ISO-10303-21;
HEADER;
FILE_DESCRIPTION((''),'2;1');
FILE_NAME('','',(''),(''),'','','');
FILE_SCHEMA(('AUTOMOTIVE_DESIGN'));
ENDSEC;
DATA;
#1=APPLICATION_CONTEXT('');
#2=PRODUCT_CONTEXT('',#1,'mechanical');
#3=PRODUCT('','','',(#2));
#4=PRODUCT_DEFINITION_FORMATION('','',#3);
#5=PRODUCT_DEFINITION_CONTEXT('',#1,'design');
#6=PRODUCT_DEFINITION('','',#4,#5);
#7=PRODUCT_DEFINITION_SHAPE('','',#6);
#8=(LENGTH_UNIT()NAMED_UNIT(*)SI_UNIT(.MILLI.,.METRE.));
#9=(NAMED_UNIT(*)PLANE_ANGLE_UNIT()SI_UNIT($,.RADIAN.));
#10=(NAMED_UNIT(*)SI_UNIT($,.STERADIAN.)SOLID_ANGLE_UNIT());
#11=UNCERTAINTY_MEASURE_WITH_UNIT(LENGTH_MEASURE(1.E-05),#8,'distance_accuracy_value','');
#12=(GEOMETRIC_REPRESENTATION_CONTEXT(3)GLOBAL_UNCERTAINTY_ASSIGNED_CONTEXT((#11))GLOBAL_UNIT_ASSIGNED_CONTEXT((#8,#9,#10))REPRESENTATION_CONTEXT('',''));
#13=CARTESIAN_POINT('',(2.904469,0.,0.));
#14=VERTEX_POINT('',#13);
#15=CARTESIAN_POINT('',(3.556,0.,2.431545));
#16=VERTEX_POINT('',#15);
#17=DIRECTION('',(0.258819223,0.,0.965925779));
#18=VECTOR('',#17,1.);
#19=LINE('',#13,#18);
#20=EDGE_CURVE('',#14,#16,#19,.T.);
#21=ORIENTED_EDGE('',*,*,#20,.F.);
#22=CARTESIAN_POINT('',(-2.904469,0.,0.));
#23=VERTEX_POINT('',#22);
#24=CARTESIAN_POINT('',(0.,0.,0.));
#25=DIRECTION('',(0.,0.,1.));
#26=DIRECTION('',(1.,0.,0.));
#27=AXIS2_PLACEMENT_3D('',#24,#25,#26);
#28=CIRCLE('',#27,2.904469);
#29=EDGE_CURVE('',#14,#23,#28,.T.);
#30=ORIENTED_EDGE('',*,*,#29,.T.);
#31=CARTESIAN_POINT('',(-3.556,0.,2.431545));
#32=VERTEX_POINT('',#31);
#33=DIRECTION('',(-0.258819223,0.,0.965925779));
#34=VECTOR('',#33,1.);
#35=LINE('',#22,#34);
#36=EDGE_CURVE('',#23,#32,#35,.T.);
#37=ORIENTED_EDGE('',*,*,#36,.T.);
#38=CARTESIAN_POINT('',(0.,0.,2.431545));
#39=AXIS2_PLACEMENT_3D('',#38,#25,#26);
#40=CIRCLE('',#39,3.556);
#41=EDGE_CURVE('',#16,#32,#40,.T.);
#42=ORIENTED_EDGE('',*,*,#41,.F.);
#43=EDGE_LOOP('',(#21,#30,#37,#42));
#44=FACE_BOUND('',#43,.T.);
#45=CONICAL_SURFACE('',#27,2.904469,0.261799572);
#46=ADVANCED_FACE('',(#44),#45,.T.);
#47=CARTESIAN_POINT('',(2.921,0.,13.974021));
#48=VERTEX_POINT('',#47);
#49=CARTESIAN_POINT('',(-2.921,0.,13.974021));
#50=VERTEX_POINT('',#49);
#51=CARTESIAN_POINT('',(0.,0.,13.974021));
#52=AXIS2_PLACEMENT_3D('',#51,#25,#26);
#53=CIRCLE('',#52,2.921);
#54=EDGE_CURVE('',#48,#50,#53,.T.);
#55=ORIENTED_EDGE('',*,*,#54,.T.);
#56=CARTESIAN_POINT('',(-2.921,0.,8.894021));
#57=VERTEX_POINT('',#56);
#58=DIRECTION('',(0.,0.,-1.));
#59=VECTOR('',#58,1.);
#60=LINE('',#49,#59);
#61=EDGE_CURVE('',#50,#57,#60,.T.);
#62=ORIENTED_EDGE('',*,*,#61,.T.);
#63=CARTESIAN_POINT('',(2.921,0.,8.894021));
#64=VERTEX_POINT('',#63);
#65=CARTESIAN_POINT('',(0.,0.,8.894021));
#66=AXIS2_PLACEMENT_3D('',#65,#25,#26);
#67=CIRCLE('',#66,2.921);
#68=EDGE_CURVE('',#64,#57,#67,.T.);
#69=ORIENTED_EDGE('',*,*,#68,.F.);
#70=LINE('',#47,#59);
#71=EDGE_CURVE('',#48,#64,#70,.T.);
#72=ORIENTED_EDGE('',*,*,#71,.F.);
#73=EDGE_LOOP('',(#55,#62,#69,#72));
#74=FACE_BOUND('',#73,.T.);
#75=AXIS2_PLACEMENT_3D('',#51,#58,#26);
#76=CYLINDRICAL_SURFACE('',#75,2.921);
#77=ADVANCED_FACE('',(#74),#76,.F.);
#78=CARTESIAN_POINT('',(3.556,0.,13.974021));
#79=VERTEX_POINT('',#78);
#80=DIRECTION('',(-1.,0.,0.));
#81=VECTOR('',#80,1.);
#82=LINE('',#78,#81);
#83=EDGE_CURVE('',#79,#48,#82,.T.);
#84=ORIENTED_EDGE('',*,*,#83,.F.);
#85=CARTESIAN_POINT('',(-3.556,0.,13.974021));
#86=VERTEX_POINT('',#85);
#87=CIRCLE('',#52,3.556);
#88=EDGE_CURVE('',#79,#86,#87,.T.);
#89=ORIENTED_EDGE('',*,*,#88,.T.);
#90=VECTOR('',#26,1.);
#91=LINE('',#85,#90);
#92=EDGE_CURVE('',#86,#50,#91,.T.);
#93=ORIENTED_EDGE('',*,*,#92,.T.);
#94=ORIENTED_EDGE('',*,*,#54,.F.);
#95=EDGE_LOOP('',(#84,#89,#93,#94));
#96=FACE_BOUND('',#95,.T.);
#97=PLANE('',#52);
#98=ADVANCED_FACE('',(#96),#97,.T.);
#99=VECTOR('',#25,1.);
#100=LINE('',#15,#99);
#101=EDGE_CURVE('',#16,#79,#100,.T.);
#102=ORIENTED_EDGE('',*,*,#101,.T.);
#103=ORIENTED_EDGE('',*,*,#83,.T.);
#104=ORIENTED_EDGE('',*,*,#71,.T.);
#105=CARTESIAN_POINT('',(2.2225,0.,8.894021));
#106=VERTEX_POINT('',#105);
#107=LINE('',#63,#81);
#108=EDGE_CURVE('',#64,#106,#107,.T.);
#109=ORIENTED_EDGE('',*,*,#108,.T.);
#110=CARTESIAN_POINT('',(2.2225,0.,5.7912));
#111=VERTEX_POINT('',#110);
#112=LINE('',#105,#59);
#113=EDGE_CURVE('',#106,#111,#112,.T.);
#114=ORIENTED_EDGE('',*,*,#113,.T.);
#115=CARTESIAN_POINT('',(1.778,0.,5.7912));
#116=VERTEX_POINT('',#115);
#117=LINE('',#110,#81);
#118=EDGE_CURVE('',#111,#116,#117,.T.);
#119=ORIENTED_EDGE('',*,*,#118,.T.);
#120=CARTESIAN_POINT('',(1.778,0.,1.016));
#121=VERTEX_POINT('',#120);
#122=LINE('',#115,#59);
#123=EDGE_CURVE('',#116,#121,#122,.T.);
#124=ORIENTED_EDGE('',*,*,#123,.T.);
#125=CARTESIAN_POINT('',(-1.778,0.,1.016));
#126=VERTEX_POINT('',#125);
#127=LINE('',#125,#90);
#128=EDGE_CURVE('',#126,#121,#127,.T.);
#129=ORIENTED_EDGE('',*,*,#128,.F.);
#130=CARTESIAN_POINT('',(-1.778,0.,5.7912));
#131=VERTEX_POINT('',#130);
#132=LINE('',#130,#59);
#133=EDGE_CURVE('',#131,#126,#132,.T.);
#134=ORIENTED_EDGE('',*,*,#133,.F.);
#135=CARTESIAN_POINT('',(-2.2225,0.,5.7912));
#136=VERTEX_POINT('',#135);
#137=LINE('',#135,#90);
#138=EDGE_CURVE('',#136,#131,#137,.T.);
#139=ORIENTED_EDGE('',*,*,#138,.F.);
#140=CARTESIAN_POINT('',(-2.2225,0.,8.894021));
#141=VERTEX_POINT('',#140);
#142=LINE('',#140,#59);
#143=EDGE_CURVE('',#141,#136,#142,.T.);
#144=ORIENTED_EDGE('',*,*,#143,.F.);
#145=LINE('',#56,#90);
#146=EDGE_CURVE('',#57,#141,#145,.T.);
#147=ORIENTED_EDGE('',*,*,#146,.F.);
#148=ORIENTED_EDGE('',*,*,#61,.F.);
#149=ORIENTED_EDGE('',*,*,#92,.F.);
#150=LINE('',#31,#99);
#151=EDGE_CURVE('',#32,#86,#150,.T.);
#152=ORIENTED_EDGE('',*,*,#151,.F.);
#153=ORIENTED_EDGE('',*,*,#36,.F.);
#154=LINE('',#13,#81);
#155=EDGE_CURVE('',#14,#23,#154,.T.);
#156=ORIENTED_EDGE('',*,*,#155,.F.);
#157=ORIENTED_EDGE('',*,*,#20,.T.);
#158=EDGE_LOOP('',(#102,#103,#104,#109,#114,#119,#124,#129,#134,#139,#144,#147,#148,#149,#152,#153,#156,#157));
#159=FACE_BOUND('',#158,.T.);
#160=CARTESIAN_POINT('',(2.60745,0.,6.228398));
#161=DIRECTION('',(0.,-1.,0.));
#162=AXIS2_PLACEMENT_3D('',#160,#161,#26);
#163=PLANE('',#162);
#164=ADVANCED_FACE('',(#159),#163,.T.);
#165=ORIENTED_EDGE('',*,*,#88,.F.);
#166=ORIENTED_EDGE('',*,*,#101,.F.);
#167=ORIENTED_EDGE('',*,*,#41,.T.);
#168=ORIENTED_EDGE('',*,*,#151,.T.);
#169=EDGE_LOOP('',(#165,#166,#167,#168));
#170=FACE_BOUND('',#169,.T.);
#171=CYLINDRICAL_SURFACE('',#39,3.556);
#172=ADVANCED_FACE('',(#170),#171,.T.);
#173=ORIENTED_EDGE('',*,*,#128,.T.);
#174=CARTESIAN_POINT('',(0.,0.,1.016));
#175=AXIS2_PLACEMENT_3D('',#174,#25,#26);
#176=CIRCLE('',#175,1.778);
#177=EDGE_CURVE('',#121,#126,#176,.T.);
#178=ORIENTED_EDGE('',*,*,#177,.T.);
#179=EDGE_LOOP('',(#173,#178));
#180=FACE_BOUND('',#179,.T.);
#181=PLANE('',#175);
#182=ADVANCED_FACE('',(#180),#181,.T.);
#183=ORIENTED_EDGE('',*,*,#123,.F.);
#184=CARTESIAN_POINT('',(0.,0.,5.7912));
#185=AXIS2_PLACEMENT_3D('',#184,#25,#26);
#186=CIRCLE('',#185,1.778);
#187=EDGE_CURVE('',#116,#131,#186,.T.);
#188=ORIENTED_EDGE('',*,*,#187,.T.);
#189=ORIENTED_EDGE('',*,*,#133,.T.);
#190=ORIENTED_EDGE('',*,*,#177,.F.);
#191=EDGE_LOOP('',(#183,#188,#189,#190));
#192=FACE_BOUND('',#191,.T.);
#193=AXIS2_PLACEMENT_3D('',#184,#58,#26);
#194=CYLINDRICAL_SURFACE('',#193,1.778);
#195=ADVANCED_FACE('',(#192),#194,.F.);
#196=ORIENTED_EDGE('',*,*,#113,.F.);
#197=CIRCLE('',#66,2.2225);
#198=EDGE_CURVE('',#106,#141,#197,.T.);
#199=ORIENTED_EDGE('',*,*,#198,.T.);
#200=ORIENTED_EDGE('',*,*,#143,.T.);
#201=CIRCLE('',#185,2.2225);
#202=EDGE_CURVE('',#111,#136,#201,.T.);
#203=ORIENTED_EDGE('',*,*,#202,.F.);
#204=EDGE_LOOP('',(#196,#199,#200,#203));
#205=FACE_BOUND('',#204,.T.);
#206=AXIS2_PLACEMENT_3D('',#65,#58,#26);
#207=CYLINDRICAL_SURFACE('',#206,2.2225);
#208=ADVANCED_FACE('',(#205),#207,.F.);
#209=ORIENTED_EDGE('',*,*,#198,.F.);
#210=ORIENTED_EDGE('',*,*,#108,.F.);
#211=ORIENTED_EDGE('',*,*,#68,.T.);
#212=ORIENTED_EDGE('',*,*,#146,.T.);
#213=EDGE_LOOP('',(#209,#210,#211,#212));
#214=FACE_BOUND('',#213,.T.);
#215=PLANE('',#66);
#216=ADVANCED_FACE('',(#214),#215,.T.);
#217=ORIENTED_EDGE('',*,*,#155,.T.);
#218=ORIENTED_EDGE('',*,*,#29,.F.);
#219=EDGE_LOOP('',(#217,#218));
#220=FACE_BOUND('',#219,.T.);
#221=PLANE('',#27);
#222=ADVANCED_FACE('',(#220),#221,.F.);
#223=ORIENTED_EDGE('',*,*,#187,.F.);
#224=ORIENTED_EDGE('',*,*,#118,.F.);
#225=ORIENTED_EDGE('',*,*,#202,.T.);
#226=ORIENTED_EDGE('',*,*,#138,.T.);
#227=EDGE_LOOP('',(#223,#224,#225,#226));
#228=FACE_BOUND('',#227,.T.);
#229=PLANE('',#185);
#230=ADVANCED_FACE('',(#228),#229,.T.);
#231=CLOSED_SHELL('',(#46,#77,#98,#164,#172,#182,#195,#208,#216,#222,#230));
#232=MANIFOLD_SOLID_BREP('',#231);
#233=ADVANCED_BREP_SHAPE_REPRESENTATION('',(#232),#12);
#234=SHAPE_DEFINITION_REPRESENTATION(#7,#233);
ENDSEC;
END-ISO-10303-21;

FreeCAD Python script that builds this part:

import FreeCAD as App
import Part
import Sketcher
from FreeCAD import Vector
Q = App.Units.Quantity

doc = App.newDocument("Part")
body = doc.addObject("PartDesign::Body", "Body")

# Sketch on XZ plane
sketch1 = doc.addObject("Sketcher::SketchObject", "Sketch")
body.addObject(sketch1)
sketch1.AttachmentSupport = (doc.XZ_Plane, [""])
sketch1.MapMode = "FlatFace"
sketch1.addGeometry([
    Part.LineSegment(Vector(2.9, 0, 0), Vector(3.56, 2.43, 0)),  # 0
    Part.LineSegment(Vector(3.56, 2.43, 0), Vector(3.56, 13.97, 0)),  # 1
    Part.LineSegment(Vector(3.56, 13.97, 0), Vector(2.92, 13.97, 0)),  # 2
    Part.LineSegment(Vector(2.92, 13.97, 0), Vector(2.92, 8.89, 0)),  # 3
    Part.LineSegment(Vector(2.92, 8.89, 0), Vector(2.22, 8.89, 0)),  # 4
    Part.LineSegment(Vector(2.22, 8.89, 0), Vector(2.22, 5.79, 0)),  # 5
    Part.LineSegment(Vector(2.22, 5.79, 0), Vector(1.78, 5.79, 0)),  # 6
    Part.LineSegment(Vector(1.78, 5.79, 0), Vector(1.78, 1.02, 0)),  # 7
    Part.LineSegment(Vector(1.78, 1.02, 0), Vector(0, 1.02, 0)),  # 8
    Part.LineSegment(Vector(0, 1.02, 0), Vector(0, 0, 0)),  # 9
    Part.LineSegment(Vector(0, 0, 0), Vector(2.9, 0, 0)),  # 10
], False)
sketch1.addConstraint([
    Sketcher.Constraint("Coincident", 0, 2, 1, 1),
    Sketcher.Constraint("Coincident", 1, 2, 2, 1),
    Sketcher.Constraint("Coincident", 2, 2, 3, 1),
    Sketcher.Constraint("Coincident", 3, 2, 4, 1),
    Sketcher.Constraint("Coincident", 4, 2, 5, 1),
    Sketcher.Constraint("Coincident", 5, 2, 6, 1),
    Sketcher.Constraint("Coincident", 6, 2, 7, 1),
    Sketcher.Constraint("Coincident", 7, 2, 8, 1),
    Sketcher.Constraint("Coincident", 8, 2, 9, 1),
    Sketcher.Constraint("Coincident", 9, 2, 10, 1),
    Sketcher.Constraint("Coincident", 10, 2, 0, 1),
    Sketcher.Constraint("Vertical", 1),
    Sketcher.Constraint("Horizontal", 2),
    Sketcher.Constraint("Vertical", 3),
    Sketcher.Constraint("Horizontal", 4),
    Sketcher.Constraint("Vertical", 5),
    Sketcher.Constraint("Horizontal", 6),
    Sketcher.Constraint("Vertical", 7),
    Sketcher.Constraint("Horizontal", 8),
    Sketcher.Constraint("Vertical", 9),
    Sketcher.Constraint("Horizontal", 10),
    Sketcher.Constraint("Coincident", 9, 2, -1, 1),
    Sketcher.Constraint("DistanceY", 3, 2, 3, 1, Q("0.2 in")),
    Sketcher.Constraint("Angle", 0, Q("74.999989 deg")),
    Sketcher.Constraint("DistanceX", 8, 2, 8, 1, Q("0.07 in")),
    Sketcher.Constraint("DistanceY", 9, 2, 9, 1, Q("0.04 in")),
    Sketcher.Constraint("DistanceX", 2, 2, 2, 1, Q("0.025 in")),
    Sketcher.Constraint("DistanceY", 7, 2, 7, 1, Q("0.188 in")),
    Sketcher.Constraint("DistanceX", -1, 1, 0, 2, Q("0.14 in")),
    Sketcher.Constraint("DistanceX", 4, 2, 4, 1, Q("0.0275 in")),
    Sketcher.Constraint("DistanceX", 10, 1, 10, 2, 2.904469),
    Sketcher.Constraint("DistanceY", 5, 2, 5, 1, 3.102821),
])
revolution = doc.addObject("PartDesign::Revolution", "Revolution")
body.addObject(revolution)
revolution.Profile = sketch1
revolution.ReferenceAxis = (sketch1, ["V_Axis"])
revolution.Angle = 180

doc.recompute()
